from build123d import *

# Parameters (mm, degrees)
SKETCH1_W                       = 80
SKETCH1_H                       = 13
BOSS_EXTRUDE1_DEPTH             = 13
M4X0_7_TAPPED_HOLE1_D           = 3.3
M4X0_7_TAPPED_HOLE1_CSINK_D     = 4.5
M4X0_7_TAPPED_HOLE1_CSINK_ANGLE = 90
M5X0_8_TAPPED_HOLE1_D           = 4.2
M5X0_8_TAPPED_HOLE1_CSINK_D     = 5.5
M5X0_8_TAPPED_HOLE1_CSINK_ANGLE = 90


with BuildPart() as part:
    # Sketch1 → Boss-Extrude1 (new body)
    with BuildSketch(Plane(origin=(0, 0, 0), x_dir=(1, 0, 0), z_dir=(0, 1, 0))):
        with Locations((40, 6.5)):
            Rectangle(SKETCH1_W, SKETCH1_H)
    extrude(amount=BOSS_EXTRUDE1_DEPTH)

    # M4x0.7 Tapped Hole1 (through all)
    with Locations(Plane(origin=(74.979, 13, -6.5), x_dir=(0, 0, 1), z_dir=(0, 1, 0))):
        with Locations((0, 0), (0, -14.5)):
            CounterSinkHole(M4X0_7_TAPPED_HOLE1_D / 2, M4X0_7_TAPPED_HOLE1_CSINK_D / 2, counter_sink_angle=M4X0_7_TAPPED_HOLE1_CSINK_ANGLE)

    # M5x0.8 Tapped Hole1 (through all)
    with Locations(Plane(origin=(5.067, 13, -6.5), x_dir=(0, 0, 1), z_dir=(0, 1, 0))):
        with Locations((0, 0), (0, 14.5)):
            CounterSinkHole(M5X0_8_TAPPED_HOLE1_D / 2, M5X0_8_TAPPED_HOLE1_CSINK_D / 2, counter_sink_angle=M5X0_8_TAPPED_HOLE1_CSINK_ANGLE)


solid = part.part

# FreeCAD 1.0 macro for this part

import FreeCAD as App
import Part
import Sketcher
from FreeCAD import Vector


def add_polygon(sketch, points):
    """Adds a closed chain of lines whose ends are joined by coincident constraints."""
    first, n = sketch.GeometryCount, len(points)
    for a, b in zip(points, points[1:] + points[:1]):
        sketch.addGeometry(Part.LineSegment(App.Vector(*a, 0), App.Vector(*b, 0)), False)
    for i in range(n):
        sketch.addConstraint(Sketcher.Constraint("Coincident", first + i, 2, first + (i + 1) % n, 1))

doc = App.newDocument("Part")
body = doc.addObject("PartDesign::Body", "Body")

sketch1 = body.newObject("Sketcher::SketchObject", "Sketch")
sketch1.AttachmentSupport = (doc.getObject("XZ_Plane"), [""])
sketch1.MapMode = "FlatFace"
add_polygon(sketch1, [(0, -13), (0, 0), (80, 0), (80, -13)])
sketch1.addConstraint([
    Sketcher.Constraint("Vertical", 0),
    Sketcher.Constraint("Horizontal", 1),
    Sketcher.Constraint("Vertical", 2),
    Sketcher.Constraint("Horizontal", 3),
    Sketcher.Constraint("Coincident", 0, 2, -1, 1),
    Sketcher.Constraint("DistanceX", 1, 1, 1, 2, 80.0),
    Sketcher.Constraint("DistanceY", 0, 1, 0, 2, 13.0),
])
pad1 = body.newObject("PartDesign::Pad", "Pad")
pad1.Profile = sketch1
pad1.Length = 13
pad1.Reversed = True

sketch2 = body.newObject("Sketcher::SketchObject", "Sketch001")
sketch2.AttachmentSupport = (doc.getObject("XZ_Plane"), [""])
sketch2.MapMode = "FlatFace"
sketch2.AttachmentOffset = App.Placement(Vector(0, 0, -13), App.Rotation())
sketch2.addGeometry([
    Part.Circle(Vector(74.979, -6.5, 0), Vector(0, 0, 1), 1.65),
    Part.Circle(Vector(60.479, -6.5, 0), Vector(0, 0, 1), 1.65),
], False)
sketch2.addConstraint([
    Sketcher.Constraint("Equal", 0, 1),
    Sketcher.Constraint("Horizontal", 0, 3, 1, 3),
    Sketcher.Constraint("Diameter", 0, 3.3),
    Sketcher.Constraint("DistanceY", 0, 3, -1, 1, 6.5),
    Sketcher.Constraint("DistanceX", 1, 3, 0, 3, 14.5),
    Sketcher.Constraint("DistanceX", -1, 1, 0, 3, 74.979),
])
doc.recompute()
hole = body.newObject("PartDesign::Hole", "Hole")
hole.Profile = sketch2
hole.ThreadType = "None"
hole.Diameter = 3.3
hole.DepthType = "ThroughAll"
hole.HoleCutType = "Countersink"
hole.HoleCutDiameter = 4.5
hole.HoleCutCountersinkAngle = 90
hole.Reversed = True

sketch3 = body.newObject("Sketcher::SketchObject", "Sketch002")
sketch3.AttachmentSupport = (doc.getObject("XZ_Plane"), [""])
sketch3.MapMode = "FlatFace"
sketch3.AttachmentOffset = App.Placement(Vector(0, 0, -13), App.Rotation())
sketch3.addGeometry([
    Part.Circle(Vector(5.067, -6.5, 0), Vector(0, 0, 1), 2.1),
    Part.Circle(Vector(19.567, -6.5, 0), Vector(0, 0, 1), 2.1),
], False)
sketch3.addConstraint([
    Sketcher.Constraint("Equal", 0, 1),
    Sketcher.Constraint("Horizontal", 0, 3, 1, 3),
    Sketcher.Constraint("Diameter", 0, 4.2),
    Sketcher.Constraint("DistanceY", 0, 3, -1, 1, 6.5),
    Sketcher.Constraint("DistanceX", 0, 3, 1, 3, 14.5),
    Sketcher.Constraint("DistanceX", -1, 1, 0, 3, 5.067),
])
doc.recompute()
hole2 = body.newObject("PartDesign::Hole", "Hole001")
hole2.Profile = sketch3
hole2.ThreadType = "None"
hole2.Diameter = 4.2
hole2.DepthType = "ThroughAll"
hole2.HoleCutType = "Countersink"
hole2.HoleCutDiameter = 5.5
hole2.HoleCutCountersinkAngle = 90
hole2.Reversed = True

doc.recompute()
